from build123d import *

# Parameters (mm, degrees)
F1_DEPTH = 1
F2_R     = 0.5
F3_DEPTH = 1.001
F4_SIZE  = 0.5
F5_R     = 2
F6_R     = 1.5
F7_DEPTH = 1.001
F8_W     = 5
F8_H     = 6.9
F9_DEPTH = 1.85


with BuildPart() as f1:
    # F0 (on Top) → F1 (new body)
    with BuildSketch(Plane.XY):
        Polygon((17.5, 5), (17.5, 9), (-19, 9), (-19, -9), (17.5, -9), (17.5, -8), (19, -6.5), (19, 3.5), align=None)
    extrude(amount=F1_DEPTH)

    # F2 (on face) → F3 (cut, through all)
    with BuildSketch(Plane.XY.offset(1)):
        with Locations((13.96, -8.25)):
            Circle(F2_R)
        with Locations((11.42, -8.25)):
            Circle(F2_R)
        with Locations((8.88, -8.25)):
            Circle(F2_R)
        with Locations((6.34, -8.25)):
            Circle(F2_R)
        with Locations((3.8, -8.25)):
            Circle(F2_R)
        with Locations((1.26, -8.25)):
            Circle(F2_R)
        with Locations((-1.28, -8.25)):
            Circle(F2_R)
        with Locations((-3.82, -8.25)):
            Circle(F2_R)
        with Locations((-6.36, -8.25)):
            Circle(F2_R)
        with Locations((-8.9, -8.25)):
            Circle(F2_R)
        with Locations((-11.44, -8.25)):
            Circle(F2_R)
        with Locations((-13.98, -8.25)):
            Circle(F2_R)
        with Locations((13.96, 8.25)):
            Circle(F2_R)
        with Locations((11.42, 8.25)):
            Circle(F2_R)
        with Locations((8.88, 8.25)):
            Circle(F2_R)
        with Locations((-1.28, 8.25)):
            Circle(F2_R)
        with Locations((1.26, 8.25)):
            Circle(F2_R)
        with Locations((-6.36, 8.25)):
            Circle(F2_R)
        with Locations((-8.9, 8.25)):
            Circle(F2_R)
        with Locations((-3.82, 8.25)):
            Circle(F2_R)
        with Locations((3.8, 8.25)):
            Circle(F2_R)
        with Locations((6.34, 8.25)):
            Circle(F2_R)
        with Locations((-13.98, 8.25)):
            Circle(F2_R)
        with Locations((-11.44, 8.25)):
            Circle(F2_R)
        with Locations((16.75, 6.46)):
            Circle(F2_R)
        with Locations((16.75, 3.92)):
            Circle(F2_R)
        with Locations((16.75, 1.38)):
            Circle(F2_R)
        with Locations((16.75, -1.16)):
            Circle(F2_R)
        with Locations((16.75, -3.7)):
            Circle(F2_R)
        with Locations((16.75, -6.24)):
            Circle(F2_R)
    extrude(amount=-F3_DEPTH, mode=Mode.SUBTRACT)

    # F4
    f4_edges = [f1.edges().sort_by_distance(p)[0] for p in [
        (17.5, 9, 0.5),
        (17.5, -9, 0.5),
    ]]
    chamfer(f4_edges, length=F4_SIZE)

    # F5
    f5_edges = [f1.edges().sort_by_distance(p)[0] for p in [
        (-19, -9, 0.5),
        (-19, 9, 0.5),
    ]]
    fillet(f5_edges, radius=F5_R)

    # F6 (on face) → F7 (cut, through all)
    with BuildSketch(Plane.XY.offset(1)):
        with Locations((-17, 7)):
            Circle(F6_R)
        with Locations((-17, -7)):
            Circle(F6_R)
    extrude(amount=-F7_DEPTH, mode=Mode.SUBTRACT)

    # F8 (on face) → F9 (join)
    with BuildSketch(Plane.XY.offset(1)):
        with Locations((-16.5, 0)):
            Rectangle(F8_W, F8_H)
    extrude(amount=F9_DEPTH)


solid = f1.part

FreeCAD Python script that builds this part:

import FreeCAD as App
import Part
import Sketcher


def edges_at(feature, points):
    """Names of the edges that pass closest to the given points."""
    edges = feature.Shape.Edges
    near = lambda p: min(range(len(edges)), key=lambda i: edges[i].distToShape(Part.Vertex(*p))[0])
    return sorted({f"Edge{near(p) + 1}" for p in points})

doc = App.newDocument("Part")
body = doc.addObject("PartDesign::Body", "Body")

# Sketch on XY plane
sketch1 = body.newObject("Sketcher::SketchObject", "Sketch")
sketch1.AttachmentSupport = (doc.getObject("XY_Plane"), [""])
sketch1.MapMode = "FlatFace"
sketch1.addGeometry([
    Part.LineSegment(App.Vector(17.5, 5, 0), App.Vector(17.5, 9, 0)),  # 0
    Part.LineSegment(App.Vector(17.5, 9, 0), App.Vector(-19, 9, 0)),  # 1
    Part.LineSegment(App.Vector(-19, 9, 0), App.Vector(-19, -9, 0)),  # 2
    Part.LineSegment(App.Vector(-19, -9, 0), App.Vector(17.5, -9, 0)),  # 3
    Part.LineSegment(App.Vector(17.5, -9, 0), App.Vector(17.5, -8, 0)),  # 4
    Part.LineSegment(App.Vector(17.5, -8, 0), App.Vector(19, -6.5, 0)),  # 5
    Part.LineSegment(App.Vector(19, -6.5, 0), App.Vector(19, 3.5, 0)),  # 6
    Part.LineSegment(App.Vector(19, 3.5, 0), App.Vector(17.5, 5, 0)),  # 7
], False)
sketch1.addConstraint([
    Sketcher.Constraint("Coincident", 0, 2, 1, 1),
    Sketcher.Constraint("Coincident", 1, 2, 2, 1),
    Sketcher.Constraint("Coincident", 2, 2, 3, 1),
    Sketcher.Constraint("Coincident", 3, 2, 4, 1),
    Sketcher.Constraint("Coincident", 4, 2, 5, 1),
    Sketcher.Constraint("Coincident", 5, 2, 6, 1),
    Sketcher.Constraint("Coincident", 6, 2, 7, 1),
    Sketcher.Constraint("Coincident", 7, 2, 0, 1),
    Sketcher.Constraint("Vertical", 0),
    Sketcher.Constraint("Horizontal", 1),
    Sketcher.Constraint("Vertical", 2),
    Sketcher.Constraint("Horizontal", 3),
    Sketcher.Constraint("Vertical", 4),
    Sketcher.Constraint("Vertical", 6),
    Sketcher.Constraint("Symmetric", 0, 2, 3, 2, -1),
    Sketcher.Constraint("Perpendicular", 5, 7),
    Sketcher.Constraint("Equal", 5, 7),
    Sketcher.Constraint("DistanceY", 0, 1, 0, 2, 4.0),
    Sketcher.Constraint("DistanceY", 2, 2, 2, 1, 18.0),
    Sketcher.Constraint("DistanceY", 4, 1, 4, 2, 1.0),
    Sketcher.Constraint("DistanceY", 6, 1, 6, 2, 10.0),
    Sketcher.Constraint("DistanceX", 1, 2, 1, 1, 36.5),
    Sketcher.Constraint("DistanceX", 1, 2, -1, 1, 19.0),
])
pad1 = body.newObject("PartDesign::Pad", "Pad")
pad1.Profile = sketch1
pad1.Length = 1

# Sketch on XY plane
sketch2 = body.newObject("Sketcher::SketchObject", "Sketch001")
sketch2.AttachmentSupport = (doc.getObject("XY_Plane"), [""])
sketch2.MapMode = "FlatFace"
sketch2.AttachmentOffset = App.Placement(App.Vector(0, 0, 1), App.Rotation())
sketch2.addGeometry([
    Part.Circle(App.Vector(14, -8.2, 0), App.Vector(0, 0, 1), 0.5),  # 0
    Part.Circle(App.Vector(11.4, -8.2, 0), App.Vector(0, 0, 1), 0.5),  # 1
    Part.Circle(App.Vector(8.9, -8.2, 0), App.Vector(0, 0, 1), 0.5),  # 2
    Part.Circle(App.Vector(6.3, -8.2, 0), App.Vector(0, 0, 1), 0.5),  # 3
    Part.Circle(App.Vector(3.8, -8.2, 0), App.Vector(0, 0, 1), 0.5),  # 4
    Part.Circle(App.Vector(1.3, -8.2, 0), App.Vector(0, 0, 1), 0.5),  # 5
    Part.Circle(App.Vector(-1.3, -8.2, 0), App.Vector(0, 0, 1), 0.5),  # 6
    Part.Circle(App.Vector(-3.8, -8.2, 0), App.Vector(0, 0, 1), 0.5),  # 7
    Part.Circle(App.Vector(-6.4, -8.2, 0), App.Vector(0, 0, 1), 0.5),  # 8
    Part.Circle(App.Vector(-8.9, -8.2, 0), App.Vector(0, 0, 1), 0.5),  # 9
    Part.Circle(App.Vector(-11.4, -8.2, 0), App.Vector(0, 0, 1), 0.5),  # 10
    Part.Circle(App.Vector(-14, -8.2, 0), App.Vector(0, 0, 1), 0.5),  # 11
    Part.Circle(App.Vector(14, 8.2, 0), App.Vector(0, 0, 1), 0.5),  # 12
    Part.Circle(App.Vector(11.4, 8.2, 0), App.Vector(0, 0, 1), 0.5),  # 13
    Part.Circle(App.Vector(8.9, 8.2, 0), App.Vector(0, 0, 1), 0.5),  # 14
    Part.Circle(App.Vector(-1.3, 8.2, 0), App.Vector(0, 0, 1), 0.5),  # 15
    Part.Circle(App.Vector(1.3, 8.2, 0), App.Vector(0, 0, 1), 0.5),  # 16
    Part.Circle(App.Vector(-6.4, 8.2, 0), App.Vector(0, 0, 1), 0.5),  # 17
    Part.Circle(App.Vector(-8.9, 8.2, 0), App.Vector(0, 0, 1), 0.5),  # 18
    Part.Circle(App.Vector(-3.8, 8.2, 0), App.Vector(0, 0, 1), 0.5),  # 19
    Part.Circle(App.Vector(3.8, 8.2, 0), App.Vector(0, 0, 1), 0.5),  # 20
    Part.Circle(App.Vector(6.3, 8.2, 0), App.Vector(0, 0, 1), 0.5),  # 21
    Part.Circle(App.Vector(-14, 8.2, 0), App.Vector(0, 0, 1), 0.5),  # 22
    Part.Circle(App.Vector(-11.4, 8.2, 0), App.Vector(0, 0, 1), 0.5),  # 23
    Part.Circle(App.Vector(16.8, 6.5, 0), App.Vector(0, 0, 1), 0.5),  # 24
    Part.Circle(App.Vector(16.8, 3.9, 0), App.Vector(0, 0, 1), 0.5),  # 25
    Part.Circle(App.Vector(16.8, 1.4, 0), App.Vector(0, 0, 1), 0.5),  # 26
    Part.Circle(App.Vector(16.8, -1.2, 0), App.Vector(0, 0, 1), 0.5),  # 27
    Part.Circle(App.Vector(16.8, -3.7, 0), App.Vector(0, 0, 1), 0.5),  # 28
    Part.Circle(App.Vector(16.8, -6.2, 0), App.Vector(0, 0, 1), 0.5),  # 29
], False)
sketch2.addConstraint([
    Sketcher.Constraint("Equal", 0, 1),
    Sketcher.Constraint("Equal", 1, 2),
    Sketcher.Constraint("Equal", 2, 3),
    Sketcher.Constraint("Equal", 3, 4),
    Sketcher.Constraint("Equal", 4, 5),
    Sketcher.Constraint("Equal", 5, 6),
    Sketcher.Constraint("Equal", 6, 7),
    Sketcher.Constraint("Equal", 7, 8),
    Sketcher.Constraint("Equal", 8, 9),
    Sketcher.Constraint("Equal", 9, 10),
    Sketcher.Constraint("Equal", 10, 11),
    Sketcher.Constraint("Equal", 11, 12),
    Sketcher.Constraint("Equal", 12, 13),
    Sketcher.Constraint("Equal", 13, 14),
    Sketcher.Constraint("Equal", 14, 15),
    Sketcher.Constraint("Equal", 15, 16),
    Sketcher.Constraint("Equal", 16, 17),
    Sketcher.Constraint("Equal", 17, 18),
    Sketcher.Constraint("Equal", 18, 19),
    Sketcher.Constraint("Equal", 19, 20),
    Sketcher.Constraint("Equal", 20, 21),
    Sketcher.Constraint("Equal", 21, 22),
    Sketcher.Constraint("Equal", 22, 23),
    Sketcher.Constraint("Equal", 23, 24),
    Sketcher.Constraint("Equal", 24, 25),
    Sketcher.Constraint("Equal", 25, 26),
    Sketcher.Constraint("Equal", 26, 27),
    Sketcher.Constraint("Equal", 27, 28),
    Sketcher.Constraint("Equal", 28, 29),
    Sketcher.Constraint("Symmetric", 0, 3, 12, 3, -1),
    Sketcher.Constraint("Symmetric", 1, 3, 13, 3, -1),
    Sketcher.Constraint("Symmetric", 2, 3, 14, 3, -1),
    Sketcher.Constraint("Symmetric", 6, 3, 15, 3, -1),
    Sketcher.Constraint("Symmetric", 5, 3, 16, 3, -1),
    Sketcher.Constraint("Symmetric", 8, 3, 17, 3, -1),
    Sketcher.Constraint("Symmetric", 9, 3, 18, 3, -1),
    Sketcher.Constraint("Symmetric", 7, 3, 19, 3, -1),
    Sketcher.Constraint("Symmetric", 4, 3, 20, 3, -1),
    Sketcher.Constraint("Symmetric", 3, 3, 21, 3, -1),
    Sketcher.Constraint("Symmetric", 11, 3, 22, 3, -1),
    Sketcher.Constraint("Symmetric", 10, 3, 23, 3, -1),
    Sketcher.Constraint("Horizontal", 0, 3, 1, 3),
    Sketcher.Constraint("Horizontal", 1, 3, 2, 3),
    Sketcher.Constraint("Horizontal", 2, 3, 3, 3),
    Sketcher.Constraint("Horizontal", 3, 3, 4, 3),
    Sketcher.Constraint("Horizontal", 4, 3, 5, 3),
    Sketcher.Constraint("Horizontal", 5, 3, 6, 3),
    Sketcher.Constraint("Horizontal", 6, 3, 7, 3),
    Sketcher.Constraint("Horizontal", 7, 3, 8, 3),
    Sketcher.Constraint("Horizontal", 8, 3, 9, 3),
    Sketcher.Constraint("Horizontal", 9, 3, 10, 3),
    Sketcher.Constraint("Horizontal", 10, 3, 11, 3),
    Sketcher.Constraint("Vertical", 24, 3, 25, 3),
    Sketcher.Constraint("Vertical", 25, 3, 26, 3),
    Sketcher.Constraint("Vertical", 26, 3, 27, 3),
    Sketcher.Constraint("Vertical", 27, 3, 28, 3),
    Sketcher.Constraint("Vertical", 28, 3, 29, 3),
    Sketcher.Constraint("Diameter", 0, 1.0),
    Sketcher.Constraint("DistanceX", -1, 1, 4, 3, 3.8),
    Sketcher.Constraint("DistanceX", 9, 3, -1, 1, 8.9),
    Sketcher.Constraint("DistanceY", 28, 3, -1, 1, 3.7),
    Sketcher.Constraint("DistanceX", 5, 3, 0, 3, 12.7),
    Sketcher.Constraint("DistanceX", 6, 3, 1, 3, 12.7),
    Sketcher.Constraint("DistanceX", 7, 3, 2, 3, 12.7),
    Sketcher.Constraint("DistanceX", 8, 3, 3, 3, 12.7),
    Sketcher.Constraint("DistanceX", 10, 3, 5, 3, 12.7),
    Sketcher.Constraint("DistanceX", 11, 3, 6, 3, 12.7),
    Sketcher.Constraint("DistanceY", 0, 3, 12, 3, 16.5),
    Sketcher.Constraint("DistanceX", -1, 1, 0, 3, 13.96),
    Sketcher.Constraint("DistanceX", -1, 1, 1, 3, 11.42),
    Sketcher.Constraint("DistanceX", -1, 1, 2, 3, 8.88),
    Sketcher.Constraint("DistanceX", -1, 1, 3, 3, 6.34),
    Sketcher.Constraint("DistanceX", -1, 1, 24, 3, 16.75),
    Sketcher.Constraint("DistanceY", -1, 1, 24, 3, 6.46),
    Sketcher.Constraint("DistanceY", -1, 1, 25, 3, 3.92),
    Sketcher.Constraint("DistanceY", -1, 1, 26, 3, 1.38),
    Sketcher.Constraint("DistanceY", 27, 3, -1, 1, 1.16),
    Sketcher.Constraint("DistanceY", 29, 3, -1, 1, 6.24),
])
pocket1 = body.newObject("PartDesign::Pocket", "Pocket")
pocket1.Profile = sketch2
pocket1.Type = "ThroughAll"
doc.recompute()

chamfer = body.newObject("PartDesign::Chamfer", "Chamfer")
chamfer.Base = (pocket1, edges_at(pocket1, [(17.5, 9, 0.5), (17.5, -9, 0.5)]))
chamfer.Size = 0.5
doc.recompute()

fillet = body.newObject("PartDesign::Fillet", "Fillet")
fillet.Base = (chamfer, edges_at(chamfer, [(-19, -9, 0.5), (-19, 9, 0.5)]))
fillet.Radius = 2

# Sketch on XY plane
sketch3 = body.newObject("Sketcher::SketchObject", "Sketch002")
sketch3.AttachmentSupport = (doc.getObject("XY_Plane"), [""])
sketch3.MapMode = "FlatFace"
sketch3.AttachmentOffset = App.Placement(App.Vector(0, 0, 1), App.Rotation())
sketch3.addGeometry([
    Part.Circle(App.Vector(-17, 7, 0), App.Vector(0, 0, 1), 1.5),
    Part.Circle(App.Vector(-17, -7, 0), App.Vector(0, 0, 1), 1.5),
], False)
sketch3.addConstraint([
    Sketcher.Constraint("Equal", 0, 1),
    Sketcher.Constraint("Symmetric", 0, 3, 1, 3, -1),
    Sketcher.Constraint("Diameter", 0, 3.0),
    Sketcher.Constraint("DistanceX", 0, 3, -1, 1, 17.0),
    Sketcher.Constraint("DistanceY", -1, 1, 0, 3, 7.0),
])
pocket2 = body.newObject("PartDesign::Pocket", "Pocket001")
pocket2.Profile = sketch3
pocket2.Type = "ThroughAll"

# Sketch on XY plane
sketch4 = body.newObject("Sketcher::SketchObject", "Sketch003")
sketch4.AttachmentSupport = (doc.getObject("XY_Plane"), [""])
sketch4.MapMode = "FlatFace"
sketch4.AttachmentOffset = App.Placement(App.Vector(0, 0, 1), App.Rotation())
sketch4.addGeometry([
    Part.LineSegment(App.Vector(-19, 3, 0), App.Vector(-19, -3, 0)),
    Part.LineSegment(App.Vector(-19, -3, 0), App.Vector(-14, -3, 0)),
    Part.LineSegment(App.Vector(-14, -3, 0), App.Vector(-14, 3, 0)),
    Part.LineSegment(App.Vector(-14, 3, 0), App.Vector(-19, 3, 0)),
], False)
sketch4.addConstraint([
    Sketcher.Constraint("Coincident", 0, 2, 1, 1),
    Sketcher.Constraint("Coincident", 1, 2, 2, 1),
    Sketcher.Constraint("Coincident", 2, 2, 3, 1),
    Sketcher.Constraint("Coincident", 3, 2, 0, 1),
    Sketcher.Constraint("Vertical", 0),
    Sketcher.Constraint("Horizontal", 1),
    Sketcher.Constraint("Vertical", 2),
    Sketcher.Constraint("Horizontal", 3),
    Sketcher.Constraint("DistanceX", 1, 1, 1, 2, 5.0),
    Sketcher.Constraint("DistanceY", 0, 2, 0, 1, 6.9),
    Sketcher.Constraint("DistanceX", 0, 2, -1, 1, 19.0),
    Sketcher.Constraint("DistanceY", 0, 2, -1, 1, 3.45),
])
pad2 = body.newObject("PartDesign::Pad", "Pad001")
pad2.Profile = sketch4
pad2.Length = 1.85

doc.recompute()
